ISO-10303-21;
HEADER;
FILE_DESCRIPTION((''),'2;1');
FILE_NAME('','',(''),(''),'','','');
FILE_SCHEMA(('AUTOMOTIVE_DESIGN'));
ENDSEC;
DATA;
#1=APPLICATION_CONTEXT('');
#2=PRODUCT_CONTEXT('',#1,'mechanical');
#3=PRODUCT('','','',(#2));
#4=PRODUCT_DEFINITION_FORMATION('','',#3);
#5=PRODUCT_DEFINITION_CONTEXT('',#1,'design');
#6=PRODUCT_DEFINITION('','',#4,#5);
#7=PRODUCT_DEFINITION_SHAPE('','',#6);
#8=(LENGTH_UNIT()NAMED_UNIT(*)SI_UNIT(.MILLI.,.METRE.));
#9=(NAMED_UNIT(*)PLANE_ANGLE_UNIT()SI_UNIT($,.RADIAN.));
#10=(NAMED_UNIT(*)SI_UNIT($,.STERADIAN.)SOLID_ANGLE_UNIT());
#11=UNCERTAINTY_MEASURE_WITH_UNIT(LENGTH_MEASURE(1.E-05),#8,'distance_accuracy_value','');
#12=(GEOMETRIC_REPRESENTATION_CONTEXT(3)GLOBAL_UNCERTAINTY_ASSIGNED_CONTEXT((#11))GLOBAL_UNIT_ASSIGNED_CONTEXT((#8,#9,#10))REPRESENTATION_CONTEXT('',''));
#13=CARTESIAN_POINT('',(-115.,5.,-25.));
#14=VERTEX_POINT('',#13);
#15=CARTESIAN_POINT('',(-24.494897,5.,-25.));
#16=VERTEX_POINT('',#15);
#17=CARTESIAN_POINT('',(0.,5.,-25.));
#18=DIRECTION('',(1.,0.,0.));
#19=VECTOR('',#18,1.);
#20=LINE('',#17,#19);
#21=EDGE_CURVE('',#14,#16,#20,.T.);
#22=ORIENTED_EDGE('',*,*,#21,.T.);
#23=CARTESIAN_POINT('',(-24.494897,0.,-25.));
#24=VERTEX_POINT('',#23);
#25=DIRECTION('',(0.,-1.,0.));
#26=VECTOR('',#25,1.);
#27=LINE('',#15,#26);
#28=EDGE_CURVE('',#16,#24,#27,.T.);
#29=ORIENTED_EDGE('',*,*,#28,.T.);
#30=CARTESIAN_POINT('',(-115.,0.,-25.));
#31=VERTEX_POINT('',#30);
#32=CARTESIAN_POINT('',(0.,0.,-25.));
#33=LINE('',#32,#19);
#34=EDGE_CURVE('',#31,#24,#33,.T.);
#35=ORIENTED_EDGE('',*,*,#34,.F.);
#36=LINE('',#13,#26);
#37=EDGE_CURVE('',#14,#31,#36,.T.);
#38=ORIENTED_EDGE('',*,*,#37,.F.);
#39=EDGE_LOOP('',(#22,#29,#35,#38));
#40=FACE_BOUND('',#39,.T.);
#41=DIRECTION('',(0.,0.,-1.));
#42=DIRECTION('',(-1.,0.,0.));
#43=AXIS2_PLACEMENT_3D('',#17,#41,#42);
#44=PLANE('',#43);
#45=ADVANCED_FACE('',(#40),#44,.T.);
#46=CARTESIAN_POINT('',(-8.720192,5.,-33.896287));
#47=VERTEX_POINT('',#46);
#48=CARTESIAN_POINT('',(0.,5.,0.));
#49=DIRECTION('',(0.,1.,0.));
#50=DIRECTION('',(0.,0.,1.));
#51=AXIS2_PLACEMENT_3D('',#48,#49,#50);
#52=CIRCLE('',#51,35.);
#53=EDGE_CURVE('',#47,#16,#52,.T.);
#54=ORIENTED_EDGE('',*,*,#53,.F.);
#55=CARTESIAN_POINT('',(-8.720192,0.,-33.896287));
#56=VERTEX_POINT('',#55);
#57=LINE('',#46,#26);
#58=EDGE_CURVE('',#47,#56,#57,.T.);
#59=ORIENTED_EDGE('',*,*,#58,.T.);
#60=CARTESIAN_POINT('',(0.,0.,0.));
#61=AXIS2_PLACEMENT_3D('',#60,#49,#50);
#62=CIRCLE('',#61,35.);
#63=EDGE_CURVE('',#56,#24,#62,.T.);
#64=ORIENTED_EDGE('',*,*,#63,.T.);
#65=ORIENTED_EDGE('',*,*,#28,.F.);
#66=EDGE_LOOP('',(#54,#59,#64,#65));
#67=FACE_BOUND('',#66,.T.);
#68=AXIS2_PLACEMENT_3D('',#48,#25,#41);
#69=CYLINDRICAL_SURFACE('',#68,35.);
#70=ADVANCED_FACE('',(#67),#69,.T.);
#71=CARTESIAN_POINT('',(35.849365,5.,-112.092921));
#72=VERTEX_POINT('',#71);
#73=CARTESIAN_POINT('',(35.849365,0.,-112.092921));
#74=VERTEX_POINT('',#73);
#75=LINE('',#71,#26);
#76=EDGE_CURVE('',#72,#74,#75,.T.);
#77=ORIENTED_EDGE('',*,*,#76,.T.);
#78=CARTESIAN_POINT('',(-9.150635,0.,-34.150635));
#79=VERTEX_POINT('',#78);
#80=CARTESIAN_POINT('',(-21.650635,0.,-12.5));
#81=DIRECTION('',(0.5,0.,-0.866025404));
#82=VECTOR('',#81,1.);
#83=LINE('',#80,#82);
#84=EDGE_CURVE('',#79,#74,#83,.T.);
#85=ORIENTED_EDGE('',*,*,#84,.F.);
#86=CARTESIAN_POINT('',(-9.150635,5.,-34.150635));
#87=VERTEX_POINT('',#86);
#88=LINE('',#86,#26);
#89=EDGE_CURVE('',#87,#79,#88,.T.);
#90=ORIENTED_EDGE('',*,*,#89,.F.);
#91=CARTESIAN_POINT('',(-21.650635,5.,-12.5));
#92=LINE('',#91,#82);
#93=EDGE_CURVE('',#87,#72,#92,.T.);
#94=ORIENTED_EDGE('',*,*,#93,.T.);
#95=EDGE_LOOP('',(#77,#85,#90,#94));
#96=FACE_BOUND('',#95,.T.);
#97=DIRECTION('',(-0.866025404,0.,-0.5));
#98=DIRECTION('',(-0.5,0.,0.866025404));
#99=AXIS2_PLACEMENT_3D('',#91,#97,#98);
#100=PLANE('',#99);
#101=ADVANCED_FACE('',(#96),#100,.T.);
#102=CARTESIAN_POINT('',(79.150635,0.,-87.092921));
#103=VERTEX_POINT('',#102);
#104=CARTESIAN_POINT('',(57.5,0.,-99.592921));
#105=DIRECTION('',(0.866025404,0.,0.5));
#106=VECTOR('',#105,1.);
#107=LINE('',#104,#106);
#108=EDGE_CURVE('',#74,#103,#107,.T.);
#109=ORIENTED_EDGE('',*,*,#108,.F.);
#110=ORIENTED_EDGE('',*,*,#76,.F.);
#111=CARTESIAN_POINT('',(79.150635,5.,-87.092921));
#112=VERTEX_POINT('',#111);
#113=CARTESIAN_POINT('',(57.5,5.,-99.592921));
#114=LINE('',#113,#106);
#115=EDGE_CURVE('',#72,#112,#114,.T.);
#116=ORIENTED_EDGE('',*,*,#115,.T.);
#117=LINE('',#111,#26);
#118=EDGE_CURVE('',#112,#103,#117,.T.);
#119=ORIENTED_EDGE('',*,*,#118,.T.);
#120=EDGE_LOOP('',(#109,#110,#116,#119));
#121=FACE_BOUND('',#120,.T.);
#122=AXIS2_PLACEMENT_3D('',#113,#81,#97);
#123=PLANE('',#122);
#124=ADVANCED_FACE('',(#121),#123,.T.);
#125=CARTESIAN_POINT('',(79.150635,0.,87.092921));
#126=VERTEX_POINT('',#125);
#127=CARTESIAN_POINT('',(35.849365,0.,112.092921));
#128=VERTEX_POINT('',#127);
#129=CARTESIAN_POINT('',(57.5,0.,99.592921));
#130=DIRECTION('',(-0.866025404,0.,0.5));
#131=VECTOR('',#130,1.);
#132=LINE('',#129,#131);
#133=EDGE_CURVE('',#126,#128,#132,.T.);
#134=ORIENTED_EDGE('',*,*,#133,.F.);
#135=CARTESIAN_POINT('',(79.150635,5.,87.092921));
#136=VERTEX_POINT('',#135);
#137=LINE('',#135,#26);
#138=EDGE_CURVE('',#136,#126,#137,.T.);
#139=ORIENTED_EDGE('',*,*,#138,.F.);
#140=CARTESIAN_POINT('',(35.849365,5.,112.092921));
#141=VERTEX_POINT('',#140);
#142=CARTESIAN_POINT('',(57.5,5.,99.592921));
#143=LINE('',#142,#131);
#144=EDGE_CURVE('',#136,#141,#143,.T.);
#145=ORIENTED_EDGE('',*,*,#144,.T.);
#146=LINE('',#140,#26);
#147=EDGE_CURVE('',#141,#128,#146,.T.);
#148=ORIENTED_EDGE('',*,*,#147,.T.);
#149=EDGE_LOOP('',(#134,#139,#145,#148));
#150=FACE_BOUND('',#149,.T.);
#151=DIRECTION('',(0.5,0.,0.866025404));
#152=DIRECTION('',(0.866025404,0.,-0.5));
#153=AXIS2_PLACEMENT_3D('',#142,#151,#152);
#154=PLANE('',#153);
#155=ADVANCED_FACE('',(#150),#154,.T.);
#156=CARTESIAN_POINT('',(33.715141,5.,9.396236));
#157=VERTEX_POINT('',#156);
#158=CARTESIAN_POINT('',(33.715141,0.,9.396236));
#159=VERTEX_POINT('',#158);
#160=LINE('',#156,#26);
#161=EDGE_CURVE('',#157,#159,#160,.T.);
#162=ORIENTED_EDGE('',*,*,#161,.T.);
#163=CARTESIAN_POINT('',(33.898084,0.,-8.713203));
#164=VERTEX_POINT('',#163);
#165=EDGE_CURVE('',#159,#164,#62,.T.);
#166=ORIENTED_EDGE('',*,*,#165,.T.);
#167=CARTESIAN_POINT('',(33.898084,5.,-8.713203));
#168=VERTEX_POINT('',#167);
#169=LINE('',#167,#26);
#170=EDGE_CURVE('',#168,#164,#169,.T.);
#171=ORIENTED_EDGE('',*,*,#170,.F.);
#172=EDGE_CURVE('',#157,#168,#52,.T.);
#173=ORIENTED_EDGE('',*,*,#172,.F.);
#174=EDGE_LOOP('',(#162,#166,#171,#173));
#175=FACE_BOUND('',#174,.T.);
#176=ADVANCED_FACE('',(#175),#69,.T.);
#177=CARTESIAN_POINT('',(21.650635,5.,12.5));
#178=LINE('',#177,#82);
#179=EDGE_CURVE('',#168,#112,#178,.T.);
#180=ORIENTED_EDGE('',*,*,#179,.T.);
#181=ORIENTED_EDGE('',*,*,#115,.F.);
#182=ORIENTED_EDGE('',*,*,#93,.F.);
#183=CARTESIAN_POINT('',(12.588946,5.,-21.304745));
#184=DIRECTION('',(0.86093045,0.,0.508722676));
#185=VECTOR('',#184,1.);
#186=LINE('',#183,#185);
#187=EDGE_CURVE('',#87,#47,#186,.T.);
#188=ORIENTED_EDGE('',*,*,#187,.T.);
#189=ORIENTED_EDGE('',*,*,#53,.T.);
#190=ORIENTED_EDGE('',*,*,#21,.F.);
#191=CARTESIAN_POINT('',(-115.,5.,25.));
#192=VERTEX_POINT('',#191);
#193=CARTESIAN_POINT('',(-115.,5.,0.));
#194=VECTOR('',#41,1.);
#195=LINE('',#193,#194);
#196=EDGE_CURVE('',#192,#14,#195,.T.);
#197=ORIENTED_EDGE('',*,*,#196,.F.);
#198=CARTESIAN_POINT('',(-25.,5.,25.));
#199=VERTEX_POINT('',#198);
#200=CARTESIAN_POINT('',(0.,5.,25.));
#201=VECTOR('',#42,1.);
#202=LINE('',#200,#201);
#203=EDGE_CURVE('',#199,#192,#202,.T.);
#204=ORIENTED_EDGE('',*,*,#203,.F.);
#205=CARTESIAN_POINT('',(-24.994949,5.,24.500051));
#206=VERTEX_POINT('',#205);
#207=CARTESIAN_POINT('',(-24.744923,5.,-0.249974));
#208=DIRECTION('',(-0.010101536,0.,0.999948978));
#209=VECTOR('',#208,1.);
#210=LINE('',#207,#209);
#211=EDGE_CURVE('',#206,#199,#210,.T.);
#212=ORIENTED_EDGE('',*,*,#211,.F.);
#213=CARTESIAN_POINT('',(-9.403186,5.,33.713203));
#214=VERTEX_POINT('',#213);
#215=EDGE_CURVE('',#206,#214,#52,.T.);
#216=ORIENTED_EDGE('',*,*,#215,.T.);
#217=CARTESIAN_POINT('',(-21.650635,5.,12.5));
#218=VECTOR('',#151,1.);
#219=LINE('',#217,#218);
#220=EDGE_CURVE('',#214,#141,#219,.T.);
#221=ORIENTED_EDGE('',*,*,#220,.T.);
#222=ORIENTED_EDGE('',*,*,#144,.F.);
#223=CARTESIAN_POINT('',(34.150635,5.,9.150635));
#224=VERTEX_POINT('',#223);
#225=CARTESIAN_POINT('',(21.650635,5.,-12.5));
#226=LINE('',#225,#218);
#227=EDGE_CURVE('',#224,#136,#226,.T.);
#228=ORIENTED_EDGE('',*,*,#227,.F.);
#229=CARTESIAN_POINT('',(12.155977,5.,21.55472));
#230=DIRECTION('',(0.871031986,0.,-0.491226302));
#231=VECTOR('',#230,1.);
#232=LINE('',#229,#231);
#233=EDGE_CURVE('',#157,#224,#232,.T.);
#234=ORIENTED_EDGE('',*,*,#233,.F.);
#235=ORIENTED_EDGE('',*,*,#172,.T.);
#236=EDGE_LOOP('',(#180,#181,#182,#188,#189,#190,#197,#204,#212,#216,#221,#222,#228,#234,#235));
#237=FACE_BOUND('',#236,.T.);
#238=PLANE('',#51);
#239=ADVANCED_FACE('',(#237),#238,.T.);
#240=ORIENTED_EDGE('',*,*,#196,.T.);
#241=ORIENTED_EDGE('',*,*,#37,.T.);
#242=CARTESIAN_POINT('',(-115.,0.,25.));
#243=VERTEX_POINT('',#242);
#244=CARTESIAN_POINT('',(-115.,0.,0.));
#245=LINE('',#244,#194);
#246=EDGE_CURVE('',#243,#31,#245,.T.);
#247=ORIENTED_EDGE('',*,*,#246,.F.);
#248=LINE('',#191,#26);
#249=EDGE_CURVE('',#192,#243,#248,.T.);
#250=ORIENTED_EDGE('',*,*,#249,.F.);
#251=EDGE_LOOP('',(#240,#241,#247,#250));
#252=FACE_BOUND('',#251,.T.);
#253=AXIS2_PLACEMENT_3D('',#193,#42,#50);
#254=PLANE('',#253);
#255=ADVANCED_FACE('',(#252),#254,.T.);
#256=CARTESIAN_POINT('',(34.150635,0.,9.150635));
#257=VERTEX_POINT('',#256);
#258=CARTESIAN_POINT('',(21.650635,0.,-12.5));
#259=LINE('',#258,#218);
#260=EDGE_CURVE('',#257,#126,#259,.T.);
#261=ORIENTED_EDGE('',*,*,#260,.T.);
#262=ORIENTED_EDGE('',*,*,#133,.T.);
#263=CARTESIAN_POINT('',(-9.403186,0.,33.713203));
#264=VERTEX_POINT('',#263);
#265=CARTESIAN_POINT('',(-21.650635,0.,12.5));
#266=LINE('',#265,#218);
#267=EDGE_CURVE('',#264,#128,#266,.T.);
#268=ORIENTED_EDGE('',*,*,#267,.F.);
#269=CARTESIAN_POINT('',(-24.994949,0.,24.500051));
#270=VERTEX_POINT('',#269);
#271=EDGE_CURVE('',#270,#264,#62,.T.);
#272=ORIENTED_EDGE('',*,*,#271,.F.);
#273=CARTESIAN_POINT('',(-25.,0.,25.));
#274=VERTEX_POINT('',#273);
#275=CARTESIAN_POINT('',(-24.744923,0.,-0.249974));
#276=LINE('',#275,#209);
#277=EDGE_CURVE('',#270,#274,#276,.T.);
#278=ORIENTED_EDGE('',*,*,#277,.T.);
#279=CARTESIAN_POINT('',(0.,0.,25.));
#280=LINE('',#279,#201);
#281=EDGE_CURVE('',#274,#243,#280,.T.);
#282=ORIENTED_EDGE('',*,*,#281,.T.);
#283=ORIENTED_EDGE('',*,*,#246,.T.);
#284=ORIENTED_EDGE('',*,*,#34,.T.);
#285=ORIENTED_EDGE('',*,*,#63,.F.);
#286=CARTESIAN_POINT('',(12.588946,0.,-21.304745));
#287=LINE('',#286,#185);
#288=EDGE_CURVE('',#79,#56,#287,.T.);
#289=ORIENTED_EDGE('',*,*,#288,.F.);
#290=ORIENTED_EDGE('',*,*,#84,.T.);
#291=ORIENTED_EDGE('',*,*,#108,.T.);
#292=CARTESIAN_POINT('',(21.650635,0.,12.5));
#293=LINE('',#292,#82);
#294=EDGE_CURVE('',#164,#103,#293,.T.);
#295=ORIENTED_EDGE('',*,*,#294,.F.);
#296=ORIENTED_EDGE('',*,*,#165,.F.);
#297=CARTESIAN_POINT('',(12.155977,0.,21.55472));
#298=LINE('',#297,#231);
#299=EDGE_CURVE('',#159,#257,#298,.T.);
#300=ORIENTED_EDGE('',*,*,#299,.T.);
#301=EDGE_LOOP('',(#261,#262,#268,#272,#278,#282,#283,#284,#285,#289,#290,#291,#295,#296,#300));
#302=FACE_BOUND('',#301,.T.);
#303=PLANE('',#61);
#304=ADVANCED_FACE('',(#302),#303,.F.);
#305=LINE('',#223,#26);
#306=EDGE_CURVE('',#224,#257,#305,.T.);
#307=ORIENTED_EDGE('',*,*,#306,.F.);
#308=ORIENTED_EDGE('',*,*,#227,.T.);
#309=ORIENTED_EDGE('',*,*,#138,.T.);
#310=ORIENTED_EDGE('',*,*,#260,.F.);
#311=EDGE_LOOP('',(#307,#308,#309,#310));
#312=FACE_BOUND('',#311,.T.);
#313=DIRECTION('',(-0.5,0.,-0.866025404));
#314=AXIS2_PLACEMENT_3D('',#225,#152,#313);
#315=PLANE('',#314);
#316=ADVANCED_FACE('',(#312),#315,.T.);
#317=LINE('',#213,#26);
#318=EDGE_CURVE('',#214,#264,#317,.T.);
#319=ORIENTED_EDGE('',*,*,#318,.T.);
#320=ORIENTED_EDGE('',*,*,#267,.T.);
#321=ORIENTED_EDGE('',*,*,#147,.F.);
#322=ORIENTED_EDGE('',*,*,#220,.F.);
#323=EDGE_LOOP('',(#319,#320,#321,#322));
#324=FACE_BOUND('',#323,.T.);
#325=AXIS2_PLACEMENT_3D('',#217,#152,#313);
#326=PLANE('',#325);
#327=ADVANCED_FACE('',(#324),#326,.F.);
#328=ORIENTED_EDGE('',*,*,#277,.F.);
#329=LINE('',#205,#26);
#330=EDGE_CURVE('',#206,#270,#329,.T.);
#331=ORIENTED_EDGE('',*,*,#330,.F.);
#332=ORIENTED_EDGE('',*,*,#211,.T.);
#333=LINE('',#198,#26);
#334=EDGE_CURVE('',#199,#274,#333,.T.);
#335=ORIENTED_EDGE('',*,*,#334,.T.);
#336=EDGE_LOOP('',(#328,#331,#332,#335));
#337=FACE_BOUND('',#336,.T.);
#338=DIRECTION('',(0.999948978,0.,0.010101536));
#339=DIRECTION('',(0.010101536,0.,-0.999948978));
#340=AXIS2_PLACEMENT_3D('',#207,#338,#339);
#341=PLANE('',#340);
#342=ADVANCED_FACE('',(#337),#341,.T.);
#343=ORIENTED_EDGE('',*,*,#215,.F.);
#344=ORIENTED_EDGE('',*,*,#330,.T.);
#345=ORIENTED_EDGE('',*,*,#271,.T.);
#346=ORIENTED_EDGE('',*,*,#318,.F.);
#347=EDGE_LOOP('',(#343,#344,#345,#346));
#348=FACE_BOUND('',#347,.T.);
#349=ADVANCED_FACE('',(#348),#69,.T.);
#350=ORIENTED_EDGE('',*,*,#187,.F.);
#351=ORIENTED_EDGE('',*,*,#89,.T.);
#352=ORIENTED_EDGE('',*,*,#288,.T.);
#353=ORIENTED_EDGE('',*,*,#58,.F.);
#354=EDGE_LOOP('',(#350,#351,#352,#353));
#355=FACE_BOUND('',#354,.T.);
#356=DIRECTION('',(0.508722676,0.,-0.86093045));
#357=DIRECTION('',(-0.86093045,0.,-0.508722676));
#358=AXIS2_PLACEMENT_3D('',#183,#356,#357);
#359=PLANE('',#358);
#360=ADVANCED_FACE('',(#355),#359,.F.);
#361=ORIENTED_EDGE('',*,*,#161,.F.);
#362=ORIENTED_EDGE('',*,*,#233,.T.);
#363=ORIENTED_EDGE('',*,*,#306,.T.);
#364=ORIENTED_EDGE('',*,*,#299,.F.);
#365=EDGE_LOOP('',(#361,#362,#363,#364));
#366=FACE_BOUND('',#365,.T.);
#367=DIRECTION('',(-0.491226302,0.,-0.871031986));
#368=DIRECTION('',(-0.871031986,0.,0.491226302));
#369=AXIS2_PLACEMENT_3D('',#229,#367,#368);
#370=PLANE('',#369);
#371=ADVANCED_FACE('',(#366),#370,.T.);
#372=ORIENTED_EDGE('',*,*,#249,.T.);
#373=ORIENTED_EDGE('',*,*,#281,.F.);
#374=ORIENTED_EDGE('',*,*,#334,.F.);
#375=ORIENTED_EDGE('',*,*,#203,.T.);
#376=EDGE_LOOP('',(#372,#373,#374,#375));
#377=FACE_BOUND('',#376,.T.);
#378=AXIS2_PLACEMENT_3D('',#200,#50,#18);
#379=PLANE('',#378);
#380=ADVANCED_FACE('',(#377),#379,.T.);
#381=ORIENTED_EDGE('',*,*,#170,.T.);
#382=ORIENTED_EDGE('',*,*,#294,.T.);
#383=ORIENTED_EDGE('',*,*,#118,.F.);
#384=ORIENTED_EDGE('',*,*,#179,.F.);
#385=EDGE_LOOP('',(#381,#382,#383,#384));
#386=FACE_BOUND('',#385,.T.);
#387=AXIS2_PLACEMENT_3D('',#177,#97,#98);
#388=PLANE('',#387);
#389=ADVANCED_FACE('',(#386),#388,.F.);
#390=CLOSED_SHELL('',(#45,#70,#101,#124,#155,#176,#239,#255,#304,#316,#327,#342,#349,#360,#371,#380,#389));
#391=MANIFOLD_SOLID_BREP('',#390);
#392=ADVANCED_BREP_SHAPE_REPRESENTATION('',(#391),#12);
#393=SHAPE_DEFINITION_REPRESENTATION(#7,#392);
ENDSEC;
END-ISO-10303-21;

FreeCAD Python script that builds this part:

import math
import FreeCAD as App
import Part
import Sketcher
Q = App.Units.Quantity

doc = App.newDocument("Part")
body = doc.addObject("PartDesign::Body", "Body")

sketch1 = body.newObject("Sketcher::SketchObject", "Sketch")
sketch1.AttachmentSupport = (doc.getObject("XZ_Plane"), [""])
sketch1.MapMode = "FlatFace"
sketch1.addGeometry(Part.LineSegment(App.Vector(-115, -25, 0), App.Vector(-115, 25, 0)), False)
sketch1.addGeometry(Part.LineSegment(App.Vector(-115, 25, 0), App.Vector(-25, 25, 0)), False)
sketch1.addGeometry(Part.LineSegment(App.Vector(-25, 25, 0), App.Vector(-24.994949, 24.500051, 0)), False)
sketch1.addGeometry(Part.ArcOfCircle(Part.Circle(App.Vector(0, 0, 0), App.Vector(0, 0, 1), 35), math.radians(105.584691), math.radians(135.572879)), False)
sketch1.addGeometry(Part.LineSegment(App.Vector(-9.403186, 33.713203, 0), App.Vector(35.849365, 112.092921, 0)), False)
sketch1.addGeometry(Part.LineSegment(App.Vector(35.849365, 112.092921, 0), App.Vector(79.150635, 87.092921, 0)), False)
sketch1.addGeometry(Part.LineSegment(App.Vector(79.150635, 87.092921, 0), App.Vector(34.150635, 9.150635, 0)), False)
sketch1.addGeometry(Part.LineSegment(App.Vector(34.150635, 9.150635, 0), App.Vector(33.715141, 9.396236, 0)), False)
sketch1.addGeometry(Part.ArcOfCircle(Part.Circle(App.Vector(0, 0, 0), App.Vector(0, 0, 1), 35), math.radians(0), math.radians(15.572879)), False)
sketch1.addGeometry(Part.ArcOfCircle(Part.Circle(App.Vector(0, 0, 0), App.Vector(0, 0, 1), 35), math.radians(-14.415309), math.radians(0)), False)
sketch1.addGeometry(Part.LineSegment(App.Vector(33.898084, -8.713203, 0), App.Vector(79.150635, -87.092921, 0)), False)
sketch1.addGeometry(Part.LineSegment(App.Vector(79.150635, -87.092921, 0), App.Vector(35.849365, -112.092921, 0)), False)
sketch1.addGeometry(Part.LineSegment(App.Vector(35.849365, -112.092921, 0), App.Vector(-9.150635, -34.150635, 0)), False)
sketch1.addGeometry(Part.LineSegment(App.Vector(-9.150635, -34.150635, 0), App.Vector(-8.720192, -33.896287, 0)), False)
sketch1.addGeometry(Part.ArcOfCircle(Part.Circle(App.Vector(0, 0, 0), App.Vector(0, 0, 1), 35), math.radians(-134.415309), math.radians(-104.427121)), False)
sketch1.addGeometry(Part.LineSegment(App.Vector(-24.494897, -25, 0), App.Vector(-115, -25, 0)), False)
sketch1.addConstraint(Sketcher.Constraint("Coincident", 0, 2, 1, 1))
sketch1.addConstraint(Sketcher.Constraint("Coincident", 1, 2, 2, 1))
sketch1.addConstraint(Sketcher.Constraint("Coincident", 2, 2, 3, 2))
sketch1.addConstraint(Sketcher.Constraint("Coincident", 3, 1, 4, 1))
sketch1.addConstraint(Sketcher.Constraint("Coincident", 4, 2, 5, 1))
sketch1.addConstraint(Sketcher.Constraint("Coincident", 5, 2, 6, 1))
sketch1.addConstraint(Sketcher.Constraint("Coincident", 6, 2, 7, 1))
sketch1.addConstraint(Sketcher.Constraint("Coincident", 7, 2, 8, 2))
sketch1.addConstraint(Sketcher.Constraint("Tangent", 8, 1, 9, 2))
sketch1.addConstraint(Sketcher.Constraint("Coincident", 9, 1, 10, 1))
sketch1.addConstraint(Sketcher.Constraint("Coincident", 10, 2, 11, 1))
sketch1.addConstraint(Sketcher.Constraint("Coincident", 11, 2, 12, 1))
sketch1.addConstraint(Sketcher.Constraint("Coincident", 12, 2, 13, 1))
sketch1.addConstraint(Sketcher.Constraint("Coincident", 13, 2, 14, 2))
sketch1.addConstraint(Sketcher.Constraint("Coincident", 14, 1, 15, 1))
sketch1.addConstraint(Sketcher.Constraint("Coincident", 15, 2, 0, 1))
sketch1.addConstraint(Sketcher.Constraint("Vertical", 0))
sketch1.addConstraint(Sketcher.Constraint("Horizontal", 1))
sketch1.addConstraint(Sketcher.Constraint("Horizontal", 15))
sketch1.addConstraint(Sketcher.Constraint("Coincident", 3, 3, -1, 1))
sketch1.addConstraint(Sketcher.Constraint("Coincident", 8, 3, -1, 1))
sketch1.addConstraint(Sketcher.Constraint("Coincident", 14, 3, -1, 1))
sketch1.addConstraint(Sketcher.Constraint("Equal", 3, 8))
sketch1.addConstraint(Sketcher.Constraint("Equal", 8, 9))
sketch1.addConstraint(Sketcher.Constraint("Equal", 9, 14))
sketch1.addConstraint(Sketcher.Constraint("Symmetric", 5, 2, 10, 2, -1))
sketch1.addConstraint(Sketcher.Constraint("Symmetric", 4, 2, 11, 2, -1))
sketch1.addConstraint(Sketcher.Constraint("PointOnObject", 8, 1, -1))
sketch1.addConstraint(Sketcher.Constraint("Perpendicular", 4, 5))
sketch1.addConstraint(Sketcher.Constraint("Perpendicular", 5, 6))
sketch1.addConstraint(Sketcher.Constraint("Perpendicular", 10, 11))
sketch1.addConstraint(Sketcher.Constraint("Perpendicular", 11, 12))
sketch1.addConstraint(Sketcher.Constraint("Equal", 2, 7))
sketch1.addConstraint(Sketcher.Constraint("Equal", 4, 10))
sketch1.addConstraint(Sketcher.Constraint("Equal", 6, 12))
sketch1.addConstraint(Sketcher.Constraint("Equal", 7, 13))
sketch1.addConstraint(Sketcher.Constraint("Radius", 3, 35.0))
sketch1.addConstraint(Sketcher.Constraint("DistanceX", 1, 1, 1, 2, 90.0))
sketch1.addConstraint(Sketcher.Constraint("DistanceY", 0, 1, 0, 2, 50.0))
sketch1.addConstraint(Sketcher.Constraint("Angle", 4, Q("60 deg")))
sketch1.addConstraint(Sketcher.Constraint("Distance", 5, 50.0))
sketch1.addConstraint(Sketcher.Constraint("Distance", 6, 90.0))
sketch1.addConstraint(Sketcher.Constraint("DistanceX", 0, 2, -1, 1, 115.0))
sketch1.addConstraint(Sketcher.Constraint("DistanceY", -1, 1, 0, 2, 25.0))
sketch1.addConstraint(Sketcher.Constraint("DistanceY", 6, 2, 7, 2, 0.245601))
sketch1.addConstraint(Sketcher.Constraint("DistanceX", 2, 2, -1, 1, 24.994949))
pad1 = body.newObject("PartDesign::Pad", "Pad")
pad1.Profile = sketch1
pad1.Length = 5
pad1.Reversed = True

doc.recompute()
